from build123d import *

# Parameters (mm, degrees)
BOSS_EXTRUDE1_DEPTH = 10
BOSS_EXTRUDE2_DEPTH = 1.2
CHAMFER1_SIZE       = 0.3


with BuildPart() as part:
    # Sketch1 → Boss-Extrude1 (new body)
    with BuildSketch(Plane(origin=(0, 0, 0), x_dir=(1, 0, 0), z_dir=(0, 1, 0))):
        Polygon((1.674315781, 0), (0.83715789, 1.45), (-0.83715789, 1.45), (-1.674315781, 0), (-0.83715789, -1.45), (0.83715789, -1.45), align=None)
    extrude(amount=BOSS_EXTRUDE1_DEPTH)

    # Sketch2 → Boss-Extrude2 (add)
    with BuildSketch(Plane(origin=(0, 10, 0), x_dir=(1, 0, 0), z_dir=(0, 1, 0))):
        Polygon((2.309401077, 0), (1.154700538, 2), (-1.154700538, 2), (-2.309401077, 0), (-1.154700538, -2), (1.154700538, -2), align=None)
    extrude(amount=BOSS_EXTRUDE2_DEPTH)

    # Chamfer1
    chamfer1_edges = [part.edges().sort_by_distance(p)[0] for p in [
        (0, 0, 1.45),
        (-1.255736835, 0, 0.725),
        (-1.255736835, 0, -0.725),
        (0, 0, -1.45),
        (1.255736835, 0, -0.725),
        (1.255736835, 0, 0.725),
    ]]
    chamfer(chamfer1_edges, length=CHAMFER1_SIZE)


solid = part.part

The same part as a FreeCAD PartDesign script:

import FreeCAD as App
import Part
import Sketcher

V = App.Vector
Q = App.Units.Quantity


def edges_at(feature, points):
    """Names of the edges that pass closest to the given points."""
    edges = feature.Shape.Edges
    near = lambda p: min(range(len(edges)), key=lambda i: edges[i].distToShape(Part.Vertex(*p))[0])
    return sorted({f"Edge{near(p) + 1}" for p in points})


def add_polygon(sketch, points):
    """Adds a closed chain of lines whose ends are joined by coincident constraints."""
    first, n = sketch.GeometryCount, len(points)
    for a, b in zip(points, points[1:] + points[:1]):
        sketch.addGeometry(Part.LineSegment(App.Vector(*a, 0), App.Vector(*b, 0)), False)
    for i in range(n):
        sketch.addConstraint(Sketcher.Constraint("Coincident", first + i, 2, first + (i + 1) % n, 1))

doc = App.newDocument("Part")
params = doc.addObject("Spreadsheet::Sheet", "Params")
for row, (alias, value) in enumerate([
    ("pad1_length", "10 mm"),
    ("pad2_length", "1.2 mm"),
    ("chamfer_size", "0.3 mm"),
], start=1):
    params.set(f"A{row}", alias)
    params.set(f"B{row}", "=" + value)
    params.setAlias(f"B{row}", alias)

body = doc.addObject("PartDesign::Body", "Body")

# Sketch on XZ plane
sketch1 = body.newObject("Sketcher::SketchObject", "Sketch")
sketch1.AttachmentSupport = (doc.getObject("XZ_Plane"), [""])
sketch1.MapMode = "FlatFace"
add_polygon(sketch1, [(1.7, 0), (0.8, -1.4), (-0.8, -1.4), (-1.7, 0), (-0.8, 1.4), (0.8, 1.4)])  # lines 0-5
sketch1.addConstraint(Sketcher.Constraint("Horizontal", 1))
sketch1.addConstraint(Sketcher.Constraint("Horizontal", 4))
sketch1.addConstraint(Sketcher.Constraint("Symmetric", 0, 2, 3, 2, -1, 1))
sketch1.addConstraint(Sketcher.Constraint("Symmetric", 2, 2, 5, 2, -1, 1))
sketch1.addConstraint(Sketcher.Constraint("PointOnObject", 2, 2, -1))
sketch1.addConstraint(Sketcher.Constraint("Parallel", 2, 5))
sketch1.addConstraint(Sketcher.Constraint("Vertical", 1, 2, 3, 2))
sketch1.addConstraint(Sketcher.Constraint("Angle", 0, Q("-120 deg")))
sketch1.addConstraint(Sketcher.Constraint("DistanceY", 1, 2, 3, 2, Q("2.9 mm")))
sketch1.addConstraint(Sketcher.Constraint("DistanceX", 1, 2, 1, 1, Q("1.674316 mm")))
pad1 = body.newObject("PartDesign::Pad", "Pad")
pad1.Profile = sketch1
pad1.setExpression("Length", "Params.pad1_length")
pad1.Reversed = True

# Sketch on XZ plane
sketch2 = body.newObject("Sketcher::SketchObject", "Sketch001")
sketch2.AttachmentSupport = (doc.getObject("XZ_Plane"), [""])
sketch2.MapMode = "FlatFace"
sketch2.AttachmentOffset = App.Placement(V(0, 0, -10), App.Rotation())
add_polygon(sketch2, [(2.3, 0), (1.2, -2), (-1.2, -2), (-2.3, 0), (-1.2, 2), (1.2, 2)])  # lines 0-5
sketch2.addConstraint(Sketcher.Constraint("Horizontal", 1))
sketch2.addConstraint(Sketcher.Constraint("Horizontal", 4))
sketch2.addConstraint(Sketcher.Constraint("Symmetric", 0, 2, 3, 2, -1, 1))
sketch2.addConstraint(Sketcher.Constraint("Symmetric", 2, 2, 5, 2, -1, 1))
sketch2.addConstraint(Sketcher.Constraint("PointOnObject", 2, 2, -1))
sketch2.addConstraint(Sketcher.Constraint("Parallel", 2, 5))
sketch2.addConstraint(Sketcher.Constraint("Vertical", 1, 2, 3, 2))
sketch2.addConstraint(Sketcher.Constraint("Angle", 0, Q("-120 deg")))
sketch2.addConstraint(Sketcher.Constraint("DistanceY", 0, 2, -1, 1, Q("2 mm")))
sketch2.addConstraint(Sketcher.Constraint("DistanceX", 1, 2, 1, 1, Q("2.309401 mm")))
pad2 = body.newObject("PartDesign::Pad", "Pad001")
pad2.Profile = sketch2
pad2.setExpression("Length", "Params.pad2_length")
pad2.Reversed = True
doc.recompute()

chamfer = body.newObject("PartDesign::Chamfer", "Chamfer")
chamfer.Base = (pad2, edges_at(pad2, [
    (0, 0, 1.45),
    (-1.256, 0, 0.725),
    (-1.256, 0, -0.725),
    (0, 0, -1.45),
    (1.256, 0, -0.725),
    (1.256, 0, 0.725),
]))
chamfer.setExpression("Size", "Params.chamfer_size")

doc.recompute()
